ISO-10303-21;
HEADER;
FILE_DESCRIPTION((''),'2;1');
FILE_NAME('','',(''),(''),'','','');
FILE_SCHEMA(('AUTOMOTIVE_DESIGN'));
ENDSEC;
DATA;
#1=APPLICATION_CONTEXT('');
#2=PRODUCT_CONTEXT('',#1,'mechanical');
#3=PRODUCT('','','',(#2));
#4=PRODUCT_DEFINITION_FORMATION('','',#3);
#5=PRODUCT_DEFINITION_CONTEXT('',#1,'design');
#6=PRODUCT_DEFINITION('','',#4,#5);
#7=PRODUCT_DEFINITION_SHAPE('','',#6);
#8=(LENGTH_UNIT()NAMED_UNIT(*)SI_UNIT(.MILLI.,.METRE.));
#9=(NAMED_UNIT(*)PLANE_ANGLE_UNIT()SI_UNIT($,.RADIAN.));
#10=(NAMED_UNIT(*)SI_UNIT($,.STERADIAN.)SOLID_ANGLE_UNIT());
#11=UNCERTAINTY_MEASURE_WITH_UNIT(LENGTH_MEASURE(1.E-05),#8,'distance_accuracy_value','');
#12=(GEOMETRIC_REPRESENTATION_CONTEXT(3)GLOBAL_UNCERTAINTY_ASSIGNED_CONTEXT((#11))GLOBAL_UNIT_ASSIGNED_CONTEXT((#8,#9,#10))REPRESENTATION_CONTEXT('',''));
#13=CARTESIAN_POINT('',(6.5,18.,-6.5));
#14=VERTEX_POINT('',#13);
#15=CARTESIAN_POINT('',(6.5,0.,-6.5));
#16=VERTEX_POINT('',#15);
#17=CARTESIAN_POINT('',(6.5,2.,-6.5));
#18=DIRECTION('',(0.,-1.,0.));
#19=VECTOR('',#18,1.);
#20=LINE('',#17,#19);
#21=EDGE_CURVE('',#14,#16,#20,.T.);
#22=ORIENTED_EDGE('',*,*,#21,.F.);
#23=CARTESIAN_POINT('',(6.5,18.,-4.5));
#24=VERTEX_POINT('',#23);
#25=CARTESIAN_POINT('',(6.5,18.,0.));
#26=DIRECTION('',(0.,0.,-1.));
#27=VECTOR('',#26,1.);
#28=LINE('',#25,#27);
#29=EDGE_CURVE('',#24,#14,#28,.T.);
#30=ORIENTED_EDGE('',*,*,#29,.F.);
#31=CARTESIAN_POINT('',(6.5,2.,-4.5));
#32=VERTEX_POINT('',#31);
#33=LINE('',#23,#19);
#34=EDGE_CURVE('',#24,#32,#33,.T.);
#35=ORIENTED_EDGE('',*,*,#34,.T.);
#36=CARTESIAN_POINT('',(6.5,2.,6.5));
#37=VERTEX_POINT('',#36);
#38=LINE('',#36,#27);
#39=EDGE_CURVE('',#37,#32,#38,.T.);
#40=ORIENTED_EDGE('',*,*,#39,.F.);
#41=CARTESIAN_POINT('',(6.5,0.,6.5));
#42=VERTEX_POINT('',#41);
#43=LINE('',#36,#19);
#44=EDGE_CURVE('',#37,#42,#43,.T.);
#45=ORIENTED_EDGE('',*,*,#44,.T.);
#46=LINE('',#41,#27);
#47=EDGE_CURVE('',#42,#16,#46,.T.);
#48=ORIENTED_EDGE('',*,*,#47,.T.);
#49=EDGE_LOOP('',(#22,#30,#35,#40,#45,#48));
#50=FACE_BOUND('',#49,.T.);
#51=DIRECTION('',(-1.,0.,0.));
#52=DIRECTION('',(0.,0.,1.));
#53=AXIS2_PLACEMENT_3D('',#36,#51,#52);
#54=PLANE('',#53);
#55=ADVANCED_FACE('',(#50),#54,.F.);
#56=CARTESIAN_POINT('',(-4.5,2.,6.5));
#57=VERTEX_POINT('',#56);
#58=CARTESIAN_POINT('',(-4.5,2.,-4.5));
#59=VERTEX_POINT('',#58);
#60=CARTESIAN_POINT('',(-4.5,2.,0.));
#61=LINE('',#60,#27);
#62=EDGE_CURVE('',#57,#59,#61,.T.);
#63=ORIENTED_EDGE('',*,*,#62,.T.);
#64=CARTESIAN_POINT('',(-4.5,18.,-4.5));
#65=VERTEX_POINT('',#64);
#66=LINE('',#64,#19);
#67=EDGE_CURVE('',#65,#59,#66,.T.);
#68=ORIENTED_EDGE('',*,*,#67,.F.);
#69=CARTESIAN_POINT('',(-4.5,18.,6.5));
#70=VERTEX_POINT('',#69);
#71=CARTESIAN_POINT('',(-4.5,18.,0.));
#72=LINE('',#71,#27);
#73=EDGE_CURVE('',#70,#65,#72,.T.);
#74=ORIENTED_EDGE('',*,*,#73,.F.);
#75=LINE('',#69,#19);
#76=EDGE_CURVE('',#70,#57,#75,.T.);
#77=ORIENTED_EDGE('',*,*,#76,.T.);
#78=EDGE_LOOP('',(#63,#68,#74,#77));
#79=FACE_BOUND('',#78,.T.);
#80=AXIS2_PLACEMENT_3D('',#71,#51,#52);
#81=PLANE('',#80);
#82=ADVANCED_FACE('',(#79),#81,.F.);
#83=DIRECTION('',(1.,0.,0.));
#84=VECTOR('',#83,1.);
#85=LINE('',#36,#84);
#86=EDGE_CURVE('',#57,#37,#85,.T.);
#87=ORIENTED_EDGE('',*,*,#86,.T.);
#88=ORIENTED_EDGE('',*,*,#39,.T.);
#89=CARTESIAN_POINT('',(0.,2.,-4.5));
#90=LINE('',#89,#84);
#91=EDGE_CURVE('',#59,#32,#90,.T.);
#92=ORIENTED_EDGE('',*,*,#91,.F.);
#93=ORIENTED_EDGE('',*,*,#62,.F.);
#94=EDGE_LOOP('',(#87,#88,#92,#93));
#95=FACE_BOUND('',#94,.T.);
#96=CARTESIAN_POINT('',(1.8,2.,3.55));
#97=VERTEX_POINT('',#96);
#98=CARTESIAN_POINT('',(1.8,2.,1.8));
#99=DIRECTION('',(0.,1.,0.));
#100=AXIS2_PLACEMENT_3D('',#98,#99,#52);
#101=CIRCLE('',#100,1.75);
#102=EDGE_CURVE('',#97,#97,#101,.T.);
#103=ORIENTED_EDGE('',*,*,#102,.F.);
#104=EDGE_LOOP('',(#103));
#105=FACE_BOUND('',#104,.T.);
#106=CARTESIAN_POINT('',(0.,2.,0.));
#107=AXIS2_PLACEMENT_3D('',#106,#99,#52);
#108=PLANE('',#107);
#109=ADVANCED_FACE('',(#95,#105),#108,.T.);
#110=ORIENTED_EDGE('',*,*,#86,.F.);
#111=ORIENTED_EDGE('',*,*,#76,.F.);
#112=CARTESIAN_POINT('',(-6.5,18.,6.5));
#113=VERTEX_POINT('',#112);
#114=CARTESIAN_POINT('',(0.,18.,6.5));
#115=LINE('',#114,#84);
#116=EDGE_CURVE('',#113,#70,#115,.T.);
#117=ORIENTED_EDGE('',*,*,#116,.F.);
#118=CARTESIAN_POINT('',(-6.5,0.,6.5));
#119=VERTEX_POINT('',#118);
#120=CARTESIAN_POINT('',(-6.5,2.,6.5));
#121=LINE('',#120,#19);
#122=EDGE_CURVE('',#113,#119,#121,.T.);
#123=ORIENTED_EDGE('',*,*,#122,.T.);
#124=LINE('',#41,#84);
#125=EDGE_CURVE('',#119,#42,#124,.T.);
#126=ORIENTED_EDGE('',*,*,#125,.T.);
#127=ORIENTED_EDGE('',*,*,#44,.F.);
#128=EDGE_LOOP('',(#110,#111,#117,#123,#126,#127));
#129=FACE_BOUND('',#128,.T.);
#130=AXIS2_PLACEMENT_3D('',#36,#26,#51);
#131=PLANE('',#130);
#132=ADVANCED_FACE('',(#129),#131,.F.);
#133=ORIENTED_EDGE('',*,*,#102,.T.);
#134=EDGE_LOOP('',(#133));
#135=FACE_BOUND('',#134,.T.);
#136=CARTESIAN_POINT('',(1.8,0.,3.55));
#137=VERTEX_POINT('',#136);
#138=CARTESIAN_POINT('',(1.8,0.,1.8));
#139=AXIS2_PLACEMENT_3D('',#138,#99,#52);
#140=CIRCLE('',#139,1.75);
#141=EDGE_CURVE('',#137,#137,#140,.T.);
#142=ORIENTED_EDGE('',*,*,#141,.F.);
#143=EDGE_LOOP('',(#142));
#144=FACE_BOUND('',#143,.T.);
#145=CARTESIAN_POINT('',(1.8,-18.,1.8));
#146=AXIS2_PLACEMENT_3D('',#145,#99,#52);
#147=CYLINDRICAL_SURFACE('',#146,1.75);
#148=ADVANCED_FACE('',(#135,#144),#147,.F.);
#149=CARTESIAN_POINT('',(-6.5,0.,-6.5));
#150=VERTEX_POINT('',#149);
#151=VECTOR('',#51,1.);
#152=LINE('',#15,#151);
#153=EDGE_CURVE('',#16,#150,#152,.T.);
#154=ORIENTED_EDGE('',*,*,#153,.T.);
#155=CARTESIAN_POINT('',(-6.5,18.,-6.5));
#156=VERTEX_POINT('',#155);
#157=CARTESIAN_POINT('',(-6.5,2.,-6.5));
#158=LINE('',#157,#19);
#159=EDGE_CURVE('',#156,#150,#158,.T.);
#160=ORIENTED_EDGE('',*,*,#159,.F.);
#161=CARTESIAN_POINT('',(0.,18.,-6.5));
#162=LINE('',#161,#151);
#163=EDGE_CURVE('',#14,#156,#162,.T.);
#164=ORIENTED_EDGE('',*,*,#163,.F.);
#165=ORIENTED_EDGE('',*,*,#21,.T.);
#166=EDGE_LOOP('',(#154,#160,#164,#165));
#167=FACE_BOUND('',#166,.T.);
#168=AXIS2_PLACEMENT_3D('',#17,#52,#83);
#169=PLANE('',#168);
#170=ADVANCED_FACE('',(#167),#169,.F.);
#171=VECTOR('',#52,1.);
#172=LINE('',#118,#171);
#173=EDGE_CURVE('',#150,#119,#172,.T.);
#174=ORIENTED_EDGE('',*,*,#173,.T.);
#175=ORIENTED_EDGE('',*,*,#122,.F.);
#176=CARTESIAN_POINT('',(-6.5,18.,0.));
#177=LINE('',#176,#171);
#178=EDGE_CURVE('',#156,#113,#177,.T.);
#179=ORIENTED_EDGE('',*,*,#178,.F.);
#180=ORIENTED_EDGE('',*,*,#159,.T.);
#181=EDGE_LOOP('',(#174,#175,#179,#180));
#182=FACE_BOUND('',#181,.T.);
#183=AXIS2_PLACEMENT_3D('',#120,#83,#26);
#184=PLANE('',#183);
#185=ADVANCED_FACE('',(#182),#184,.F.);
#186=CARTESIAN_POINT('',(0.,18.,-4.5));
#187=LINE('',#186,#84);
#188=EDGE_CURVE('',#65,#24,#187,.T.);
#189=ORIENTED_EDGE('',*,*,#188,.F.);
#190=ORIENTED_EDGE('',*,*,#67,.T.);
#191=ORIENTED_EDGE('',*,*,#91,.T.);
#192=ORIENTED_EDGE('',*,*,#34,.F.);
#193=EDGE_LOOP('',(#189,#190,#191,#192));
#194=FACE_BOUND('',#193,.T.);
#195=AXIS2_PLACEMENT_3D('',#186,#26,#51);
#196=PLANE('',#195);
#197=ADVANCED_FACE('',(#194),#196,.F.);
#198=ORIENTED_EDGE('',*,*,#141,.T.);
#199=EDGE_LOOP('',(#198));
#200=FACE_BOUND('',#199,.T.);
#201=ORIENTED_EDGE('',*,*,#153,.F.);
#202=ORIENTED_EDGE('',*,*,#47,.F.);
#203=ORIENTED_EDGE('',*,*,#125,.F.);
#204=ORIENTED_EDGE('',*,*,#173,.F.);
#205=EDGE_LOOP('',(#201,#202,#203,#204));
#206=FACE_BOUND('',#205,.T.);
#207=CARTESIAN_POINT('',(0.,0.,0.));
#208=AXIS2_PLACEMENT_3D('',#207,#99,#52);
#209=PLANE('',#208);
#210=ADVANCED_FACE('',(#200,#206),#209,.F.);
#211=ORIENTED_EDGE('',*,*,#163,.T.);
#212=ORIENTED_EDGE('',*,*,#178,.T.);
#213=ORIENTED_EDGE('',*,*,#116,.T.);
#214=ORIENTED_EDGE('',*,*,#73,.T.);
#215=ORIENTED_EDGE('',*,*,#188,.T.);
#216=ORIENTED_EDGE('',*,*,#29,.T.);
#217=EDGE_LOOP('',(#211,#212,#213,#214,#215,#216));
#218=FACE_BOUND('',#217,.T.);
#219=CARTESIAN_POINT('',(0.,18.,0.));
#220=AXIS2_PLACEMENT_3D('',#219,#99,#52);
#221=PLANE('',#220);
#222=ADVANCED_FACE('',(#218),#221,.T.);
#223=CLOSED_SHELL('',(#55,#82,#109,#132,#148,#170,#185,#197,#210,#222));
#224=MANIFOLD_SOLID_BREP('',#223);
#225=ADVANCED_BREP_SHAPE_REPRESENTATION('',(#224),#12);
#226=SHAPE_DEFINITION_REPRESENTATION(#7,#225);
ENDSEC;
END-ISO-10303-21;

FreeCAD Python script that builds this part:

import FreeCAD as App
import Part
import Sketcher

V = App.Vector


def add_polygon(sketch, points):
    """Adds a closed chain of lines whose ends are joined by coincident constraints."""
    first, n = sketch.GeometryCount, len(points)
    for a, b in zip(points, points[1:] + points[:1]):
        sketch.addGeometry(Part.LineSegment(App.Vector(*a, 0), App.Vector(*b, 0)), False)
    for i in range(n):
        sketch.addConstraint(Sketcher.Constraint("Coincident", first + i, 2, first + (i + 1) % n, 1))

doc = App.newDocument("Part")
body = doc.addObject("PartDesign::Body", "Body")

sketch1 = doc.addObject("Sketcher::SketchObject", "Sketch")
body.addObject(sketch1)
sketch1.AttachmentSupport = (doc.XZ_Plane, [""])
sketch1.MapMode = "FlatFace"
add_polygon(sketch1, [(-6, -6), (-6, 6), (6, 6), (6, -6)])
sketch1.addConstraint(Sketcher.Constraint("Vertical", 0))
sketch1.addConstraint(Sketcher.Constraint("Horizontal", 1))
sketch1.addConstraint(Sketcher.Constraint("Vertical", 2))
sketch1.addConstraint(Sketcher.Constraint("Horizontal", 3))
sketch1.addConstraint(Sketcher.Constraint("Symmetric", 0, 2, 2, 2, -1, 1))
sketch1.addConstraint(Sketcher.Constraint("Equal", 3, 0))
sketch1.addConstraint(Sketcher.Constraint("DistanceX", 1, 1, 1, 2, 13.0))
pad1 = doc.addObject("PartDesign::Pad", "Pad")
body.addObject(pad1)
pad1.Profile = sketch1
pad1.Length = 2
pad1.Reversed = True

sketch2 = doc.addObject("Sketcher::SketchObject", "Sketch001")
body.addObject(sketch2)
sketch2.AttachmentSupport = (doc.XZ_Plane, [""])
sketch2.MapMode = "FlatFace"
sketch2.AttachmentOffset = App.Placement(V(0, 0, -2), App.Rotation())
add_polygon(sketch2, [(-6.5, -6.5), (-6.5, 6.5), (-4.5, 6.5), (-4.5, -4.5), (6.5, -4.5), (6.5, -6.5)])
sketch2.addConstraint(Sketcher.Constraint("Vertical", 0))
sketch2.addConstraint(Sketcher.Constraint("Horizontal", 1))
sketch2.addConstraint(Sketcher.Constraint("Vertical", 2))
sketch2.addConstraint(Sketcher.Constraint("Horizontal", 3))
sketch2.addConstraint(Sketcher.Constraint("Vertical", 4))
sketch2.addConstraint(Sketcher.Constraint("Horizontal", 5))
sketch2.addConstraint(Sketcher.Constraint("Symmetric", 0, 2, 4, 2, -1, 1))
sketch2.addConstraint(Sketcher.Constraint("Equal", 5, 0))
sketch2.addConstraint(Sketcher.Constraint("Equal", 3, 2))
sketch2.addConstraint(Sketcher.Constraint("DistanceX", 1, 1, 1, 2, 2.0))
sketch2.addConstraint(Sketcher.Constraint("DistanceX", 3, 1, 3, 2, 11.0))
pad2 = doc.addObject("PartDesign::Pad", "Pad001")
body.addObject(pad2)
pad2.Profile = sketch2
pad2.Length = 16
pad2.Reversed = True

sketch3 = doc.addObject("Sketcher::SketchObject", "Sketch002")
body.addObject(sketch3)
sketch3.AttachmentSupport = (doc.XZ_Plane, [""])
sketch3.MapMode = "FlatFace"
sketch3.AttachmentOffset = App.Placement(V(0, 0, -2), App.Rotation())
sketch3.addGeometry(Part.Circle(V(1.8, 1.8, 0), V(0, 0, 1), 1.8), False)
sketch3.addConstraint(Sketcher.Constraint("Diameter", 0, 3.5))
sketch3.addConstraint(Sketcher.Constraint("DistanceX", -1, 1, 0, 3, 1.8))
sketch3.addConstraint(Sketcher.Constraint("DistanceY", -1, 1, 0, 3, 1.8))
pocket1 = doc.addObject("PartDesign::Pocket", "Pocket")
body.addObject(pocket1)
pocket1.Profile = sketch3
pocket1.Length = 20
pocket1.Reversed = True

doc.recompute()
